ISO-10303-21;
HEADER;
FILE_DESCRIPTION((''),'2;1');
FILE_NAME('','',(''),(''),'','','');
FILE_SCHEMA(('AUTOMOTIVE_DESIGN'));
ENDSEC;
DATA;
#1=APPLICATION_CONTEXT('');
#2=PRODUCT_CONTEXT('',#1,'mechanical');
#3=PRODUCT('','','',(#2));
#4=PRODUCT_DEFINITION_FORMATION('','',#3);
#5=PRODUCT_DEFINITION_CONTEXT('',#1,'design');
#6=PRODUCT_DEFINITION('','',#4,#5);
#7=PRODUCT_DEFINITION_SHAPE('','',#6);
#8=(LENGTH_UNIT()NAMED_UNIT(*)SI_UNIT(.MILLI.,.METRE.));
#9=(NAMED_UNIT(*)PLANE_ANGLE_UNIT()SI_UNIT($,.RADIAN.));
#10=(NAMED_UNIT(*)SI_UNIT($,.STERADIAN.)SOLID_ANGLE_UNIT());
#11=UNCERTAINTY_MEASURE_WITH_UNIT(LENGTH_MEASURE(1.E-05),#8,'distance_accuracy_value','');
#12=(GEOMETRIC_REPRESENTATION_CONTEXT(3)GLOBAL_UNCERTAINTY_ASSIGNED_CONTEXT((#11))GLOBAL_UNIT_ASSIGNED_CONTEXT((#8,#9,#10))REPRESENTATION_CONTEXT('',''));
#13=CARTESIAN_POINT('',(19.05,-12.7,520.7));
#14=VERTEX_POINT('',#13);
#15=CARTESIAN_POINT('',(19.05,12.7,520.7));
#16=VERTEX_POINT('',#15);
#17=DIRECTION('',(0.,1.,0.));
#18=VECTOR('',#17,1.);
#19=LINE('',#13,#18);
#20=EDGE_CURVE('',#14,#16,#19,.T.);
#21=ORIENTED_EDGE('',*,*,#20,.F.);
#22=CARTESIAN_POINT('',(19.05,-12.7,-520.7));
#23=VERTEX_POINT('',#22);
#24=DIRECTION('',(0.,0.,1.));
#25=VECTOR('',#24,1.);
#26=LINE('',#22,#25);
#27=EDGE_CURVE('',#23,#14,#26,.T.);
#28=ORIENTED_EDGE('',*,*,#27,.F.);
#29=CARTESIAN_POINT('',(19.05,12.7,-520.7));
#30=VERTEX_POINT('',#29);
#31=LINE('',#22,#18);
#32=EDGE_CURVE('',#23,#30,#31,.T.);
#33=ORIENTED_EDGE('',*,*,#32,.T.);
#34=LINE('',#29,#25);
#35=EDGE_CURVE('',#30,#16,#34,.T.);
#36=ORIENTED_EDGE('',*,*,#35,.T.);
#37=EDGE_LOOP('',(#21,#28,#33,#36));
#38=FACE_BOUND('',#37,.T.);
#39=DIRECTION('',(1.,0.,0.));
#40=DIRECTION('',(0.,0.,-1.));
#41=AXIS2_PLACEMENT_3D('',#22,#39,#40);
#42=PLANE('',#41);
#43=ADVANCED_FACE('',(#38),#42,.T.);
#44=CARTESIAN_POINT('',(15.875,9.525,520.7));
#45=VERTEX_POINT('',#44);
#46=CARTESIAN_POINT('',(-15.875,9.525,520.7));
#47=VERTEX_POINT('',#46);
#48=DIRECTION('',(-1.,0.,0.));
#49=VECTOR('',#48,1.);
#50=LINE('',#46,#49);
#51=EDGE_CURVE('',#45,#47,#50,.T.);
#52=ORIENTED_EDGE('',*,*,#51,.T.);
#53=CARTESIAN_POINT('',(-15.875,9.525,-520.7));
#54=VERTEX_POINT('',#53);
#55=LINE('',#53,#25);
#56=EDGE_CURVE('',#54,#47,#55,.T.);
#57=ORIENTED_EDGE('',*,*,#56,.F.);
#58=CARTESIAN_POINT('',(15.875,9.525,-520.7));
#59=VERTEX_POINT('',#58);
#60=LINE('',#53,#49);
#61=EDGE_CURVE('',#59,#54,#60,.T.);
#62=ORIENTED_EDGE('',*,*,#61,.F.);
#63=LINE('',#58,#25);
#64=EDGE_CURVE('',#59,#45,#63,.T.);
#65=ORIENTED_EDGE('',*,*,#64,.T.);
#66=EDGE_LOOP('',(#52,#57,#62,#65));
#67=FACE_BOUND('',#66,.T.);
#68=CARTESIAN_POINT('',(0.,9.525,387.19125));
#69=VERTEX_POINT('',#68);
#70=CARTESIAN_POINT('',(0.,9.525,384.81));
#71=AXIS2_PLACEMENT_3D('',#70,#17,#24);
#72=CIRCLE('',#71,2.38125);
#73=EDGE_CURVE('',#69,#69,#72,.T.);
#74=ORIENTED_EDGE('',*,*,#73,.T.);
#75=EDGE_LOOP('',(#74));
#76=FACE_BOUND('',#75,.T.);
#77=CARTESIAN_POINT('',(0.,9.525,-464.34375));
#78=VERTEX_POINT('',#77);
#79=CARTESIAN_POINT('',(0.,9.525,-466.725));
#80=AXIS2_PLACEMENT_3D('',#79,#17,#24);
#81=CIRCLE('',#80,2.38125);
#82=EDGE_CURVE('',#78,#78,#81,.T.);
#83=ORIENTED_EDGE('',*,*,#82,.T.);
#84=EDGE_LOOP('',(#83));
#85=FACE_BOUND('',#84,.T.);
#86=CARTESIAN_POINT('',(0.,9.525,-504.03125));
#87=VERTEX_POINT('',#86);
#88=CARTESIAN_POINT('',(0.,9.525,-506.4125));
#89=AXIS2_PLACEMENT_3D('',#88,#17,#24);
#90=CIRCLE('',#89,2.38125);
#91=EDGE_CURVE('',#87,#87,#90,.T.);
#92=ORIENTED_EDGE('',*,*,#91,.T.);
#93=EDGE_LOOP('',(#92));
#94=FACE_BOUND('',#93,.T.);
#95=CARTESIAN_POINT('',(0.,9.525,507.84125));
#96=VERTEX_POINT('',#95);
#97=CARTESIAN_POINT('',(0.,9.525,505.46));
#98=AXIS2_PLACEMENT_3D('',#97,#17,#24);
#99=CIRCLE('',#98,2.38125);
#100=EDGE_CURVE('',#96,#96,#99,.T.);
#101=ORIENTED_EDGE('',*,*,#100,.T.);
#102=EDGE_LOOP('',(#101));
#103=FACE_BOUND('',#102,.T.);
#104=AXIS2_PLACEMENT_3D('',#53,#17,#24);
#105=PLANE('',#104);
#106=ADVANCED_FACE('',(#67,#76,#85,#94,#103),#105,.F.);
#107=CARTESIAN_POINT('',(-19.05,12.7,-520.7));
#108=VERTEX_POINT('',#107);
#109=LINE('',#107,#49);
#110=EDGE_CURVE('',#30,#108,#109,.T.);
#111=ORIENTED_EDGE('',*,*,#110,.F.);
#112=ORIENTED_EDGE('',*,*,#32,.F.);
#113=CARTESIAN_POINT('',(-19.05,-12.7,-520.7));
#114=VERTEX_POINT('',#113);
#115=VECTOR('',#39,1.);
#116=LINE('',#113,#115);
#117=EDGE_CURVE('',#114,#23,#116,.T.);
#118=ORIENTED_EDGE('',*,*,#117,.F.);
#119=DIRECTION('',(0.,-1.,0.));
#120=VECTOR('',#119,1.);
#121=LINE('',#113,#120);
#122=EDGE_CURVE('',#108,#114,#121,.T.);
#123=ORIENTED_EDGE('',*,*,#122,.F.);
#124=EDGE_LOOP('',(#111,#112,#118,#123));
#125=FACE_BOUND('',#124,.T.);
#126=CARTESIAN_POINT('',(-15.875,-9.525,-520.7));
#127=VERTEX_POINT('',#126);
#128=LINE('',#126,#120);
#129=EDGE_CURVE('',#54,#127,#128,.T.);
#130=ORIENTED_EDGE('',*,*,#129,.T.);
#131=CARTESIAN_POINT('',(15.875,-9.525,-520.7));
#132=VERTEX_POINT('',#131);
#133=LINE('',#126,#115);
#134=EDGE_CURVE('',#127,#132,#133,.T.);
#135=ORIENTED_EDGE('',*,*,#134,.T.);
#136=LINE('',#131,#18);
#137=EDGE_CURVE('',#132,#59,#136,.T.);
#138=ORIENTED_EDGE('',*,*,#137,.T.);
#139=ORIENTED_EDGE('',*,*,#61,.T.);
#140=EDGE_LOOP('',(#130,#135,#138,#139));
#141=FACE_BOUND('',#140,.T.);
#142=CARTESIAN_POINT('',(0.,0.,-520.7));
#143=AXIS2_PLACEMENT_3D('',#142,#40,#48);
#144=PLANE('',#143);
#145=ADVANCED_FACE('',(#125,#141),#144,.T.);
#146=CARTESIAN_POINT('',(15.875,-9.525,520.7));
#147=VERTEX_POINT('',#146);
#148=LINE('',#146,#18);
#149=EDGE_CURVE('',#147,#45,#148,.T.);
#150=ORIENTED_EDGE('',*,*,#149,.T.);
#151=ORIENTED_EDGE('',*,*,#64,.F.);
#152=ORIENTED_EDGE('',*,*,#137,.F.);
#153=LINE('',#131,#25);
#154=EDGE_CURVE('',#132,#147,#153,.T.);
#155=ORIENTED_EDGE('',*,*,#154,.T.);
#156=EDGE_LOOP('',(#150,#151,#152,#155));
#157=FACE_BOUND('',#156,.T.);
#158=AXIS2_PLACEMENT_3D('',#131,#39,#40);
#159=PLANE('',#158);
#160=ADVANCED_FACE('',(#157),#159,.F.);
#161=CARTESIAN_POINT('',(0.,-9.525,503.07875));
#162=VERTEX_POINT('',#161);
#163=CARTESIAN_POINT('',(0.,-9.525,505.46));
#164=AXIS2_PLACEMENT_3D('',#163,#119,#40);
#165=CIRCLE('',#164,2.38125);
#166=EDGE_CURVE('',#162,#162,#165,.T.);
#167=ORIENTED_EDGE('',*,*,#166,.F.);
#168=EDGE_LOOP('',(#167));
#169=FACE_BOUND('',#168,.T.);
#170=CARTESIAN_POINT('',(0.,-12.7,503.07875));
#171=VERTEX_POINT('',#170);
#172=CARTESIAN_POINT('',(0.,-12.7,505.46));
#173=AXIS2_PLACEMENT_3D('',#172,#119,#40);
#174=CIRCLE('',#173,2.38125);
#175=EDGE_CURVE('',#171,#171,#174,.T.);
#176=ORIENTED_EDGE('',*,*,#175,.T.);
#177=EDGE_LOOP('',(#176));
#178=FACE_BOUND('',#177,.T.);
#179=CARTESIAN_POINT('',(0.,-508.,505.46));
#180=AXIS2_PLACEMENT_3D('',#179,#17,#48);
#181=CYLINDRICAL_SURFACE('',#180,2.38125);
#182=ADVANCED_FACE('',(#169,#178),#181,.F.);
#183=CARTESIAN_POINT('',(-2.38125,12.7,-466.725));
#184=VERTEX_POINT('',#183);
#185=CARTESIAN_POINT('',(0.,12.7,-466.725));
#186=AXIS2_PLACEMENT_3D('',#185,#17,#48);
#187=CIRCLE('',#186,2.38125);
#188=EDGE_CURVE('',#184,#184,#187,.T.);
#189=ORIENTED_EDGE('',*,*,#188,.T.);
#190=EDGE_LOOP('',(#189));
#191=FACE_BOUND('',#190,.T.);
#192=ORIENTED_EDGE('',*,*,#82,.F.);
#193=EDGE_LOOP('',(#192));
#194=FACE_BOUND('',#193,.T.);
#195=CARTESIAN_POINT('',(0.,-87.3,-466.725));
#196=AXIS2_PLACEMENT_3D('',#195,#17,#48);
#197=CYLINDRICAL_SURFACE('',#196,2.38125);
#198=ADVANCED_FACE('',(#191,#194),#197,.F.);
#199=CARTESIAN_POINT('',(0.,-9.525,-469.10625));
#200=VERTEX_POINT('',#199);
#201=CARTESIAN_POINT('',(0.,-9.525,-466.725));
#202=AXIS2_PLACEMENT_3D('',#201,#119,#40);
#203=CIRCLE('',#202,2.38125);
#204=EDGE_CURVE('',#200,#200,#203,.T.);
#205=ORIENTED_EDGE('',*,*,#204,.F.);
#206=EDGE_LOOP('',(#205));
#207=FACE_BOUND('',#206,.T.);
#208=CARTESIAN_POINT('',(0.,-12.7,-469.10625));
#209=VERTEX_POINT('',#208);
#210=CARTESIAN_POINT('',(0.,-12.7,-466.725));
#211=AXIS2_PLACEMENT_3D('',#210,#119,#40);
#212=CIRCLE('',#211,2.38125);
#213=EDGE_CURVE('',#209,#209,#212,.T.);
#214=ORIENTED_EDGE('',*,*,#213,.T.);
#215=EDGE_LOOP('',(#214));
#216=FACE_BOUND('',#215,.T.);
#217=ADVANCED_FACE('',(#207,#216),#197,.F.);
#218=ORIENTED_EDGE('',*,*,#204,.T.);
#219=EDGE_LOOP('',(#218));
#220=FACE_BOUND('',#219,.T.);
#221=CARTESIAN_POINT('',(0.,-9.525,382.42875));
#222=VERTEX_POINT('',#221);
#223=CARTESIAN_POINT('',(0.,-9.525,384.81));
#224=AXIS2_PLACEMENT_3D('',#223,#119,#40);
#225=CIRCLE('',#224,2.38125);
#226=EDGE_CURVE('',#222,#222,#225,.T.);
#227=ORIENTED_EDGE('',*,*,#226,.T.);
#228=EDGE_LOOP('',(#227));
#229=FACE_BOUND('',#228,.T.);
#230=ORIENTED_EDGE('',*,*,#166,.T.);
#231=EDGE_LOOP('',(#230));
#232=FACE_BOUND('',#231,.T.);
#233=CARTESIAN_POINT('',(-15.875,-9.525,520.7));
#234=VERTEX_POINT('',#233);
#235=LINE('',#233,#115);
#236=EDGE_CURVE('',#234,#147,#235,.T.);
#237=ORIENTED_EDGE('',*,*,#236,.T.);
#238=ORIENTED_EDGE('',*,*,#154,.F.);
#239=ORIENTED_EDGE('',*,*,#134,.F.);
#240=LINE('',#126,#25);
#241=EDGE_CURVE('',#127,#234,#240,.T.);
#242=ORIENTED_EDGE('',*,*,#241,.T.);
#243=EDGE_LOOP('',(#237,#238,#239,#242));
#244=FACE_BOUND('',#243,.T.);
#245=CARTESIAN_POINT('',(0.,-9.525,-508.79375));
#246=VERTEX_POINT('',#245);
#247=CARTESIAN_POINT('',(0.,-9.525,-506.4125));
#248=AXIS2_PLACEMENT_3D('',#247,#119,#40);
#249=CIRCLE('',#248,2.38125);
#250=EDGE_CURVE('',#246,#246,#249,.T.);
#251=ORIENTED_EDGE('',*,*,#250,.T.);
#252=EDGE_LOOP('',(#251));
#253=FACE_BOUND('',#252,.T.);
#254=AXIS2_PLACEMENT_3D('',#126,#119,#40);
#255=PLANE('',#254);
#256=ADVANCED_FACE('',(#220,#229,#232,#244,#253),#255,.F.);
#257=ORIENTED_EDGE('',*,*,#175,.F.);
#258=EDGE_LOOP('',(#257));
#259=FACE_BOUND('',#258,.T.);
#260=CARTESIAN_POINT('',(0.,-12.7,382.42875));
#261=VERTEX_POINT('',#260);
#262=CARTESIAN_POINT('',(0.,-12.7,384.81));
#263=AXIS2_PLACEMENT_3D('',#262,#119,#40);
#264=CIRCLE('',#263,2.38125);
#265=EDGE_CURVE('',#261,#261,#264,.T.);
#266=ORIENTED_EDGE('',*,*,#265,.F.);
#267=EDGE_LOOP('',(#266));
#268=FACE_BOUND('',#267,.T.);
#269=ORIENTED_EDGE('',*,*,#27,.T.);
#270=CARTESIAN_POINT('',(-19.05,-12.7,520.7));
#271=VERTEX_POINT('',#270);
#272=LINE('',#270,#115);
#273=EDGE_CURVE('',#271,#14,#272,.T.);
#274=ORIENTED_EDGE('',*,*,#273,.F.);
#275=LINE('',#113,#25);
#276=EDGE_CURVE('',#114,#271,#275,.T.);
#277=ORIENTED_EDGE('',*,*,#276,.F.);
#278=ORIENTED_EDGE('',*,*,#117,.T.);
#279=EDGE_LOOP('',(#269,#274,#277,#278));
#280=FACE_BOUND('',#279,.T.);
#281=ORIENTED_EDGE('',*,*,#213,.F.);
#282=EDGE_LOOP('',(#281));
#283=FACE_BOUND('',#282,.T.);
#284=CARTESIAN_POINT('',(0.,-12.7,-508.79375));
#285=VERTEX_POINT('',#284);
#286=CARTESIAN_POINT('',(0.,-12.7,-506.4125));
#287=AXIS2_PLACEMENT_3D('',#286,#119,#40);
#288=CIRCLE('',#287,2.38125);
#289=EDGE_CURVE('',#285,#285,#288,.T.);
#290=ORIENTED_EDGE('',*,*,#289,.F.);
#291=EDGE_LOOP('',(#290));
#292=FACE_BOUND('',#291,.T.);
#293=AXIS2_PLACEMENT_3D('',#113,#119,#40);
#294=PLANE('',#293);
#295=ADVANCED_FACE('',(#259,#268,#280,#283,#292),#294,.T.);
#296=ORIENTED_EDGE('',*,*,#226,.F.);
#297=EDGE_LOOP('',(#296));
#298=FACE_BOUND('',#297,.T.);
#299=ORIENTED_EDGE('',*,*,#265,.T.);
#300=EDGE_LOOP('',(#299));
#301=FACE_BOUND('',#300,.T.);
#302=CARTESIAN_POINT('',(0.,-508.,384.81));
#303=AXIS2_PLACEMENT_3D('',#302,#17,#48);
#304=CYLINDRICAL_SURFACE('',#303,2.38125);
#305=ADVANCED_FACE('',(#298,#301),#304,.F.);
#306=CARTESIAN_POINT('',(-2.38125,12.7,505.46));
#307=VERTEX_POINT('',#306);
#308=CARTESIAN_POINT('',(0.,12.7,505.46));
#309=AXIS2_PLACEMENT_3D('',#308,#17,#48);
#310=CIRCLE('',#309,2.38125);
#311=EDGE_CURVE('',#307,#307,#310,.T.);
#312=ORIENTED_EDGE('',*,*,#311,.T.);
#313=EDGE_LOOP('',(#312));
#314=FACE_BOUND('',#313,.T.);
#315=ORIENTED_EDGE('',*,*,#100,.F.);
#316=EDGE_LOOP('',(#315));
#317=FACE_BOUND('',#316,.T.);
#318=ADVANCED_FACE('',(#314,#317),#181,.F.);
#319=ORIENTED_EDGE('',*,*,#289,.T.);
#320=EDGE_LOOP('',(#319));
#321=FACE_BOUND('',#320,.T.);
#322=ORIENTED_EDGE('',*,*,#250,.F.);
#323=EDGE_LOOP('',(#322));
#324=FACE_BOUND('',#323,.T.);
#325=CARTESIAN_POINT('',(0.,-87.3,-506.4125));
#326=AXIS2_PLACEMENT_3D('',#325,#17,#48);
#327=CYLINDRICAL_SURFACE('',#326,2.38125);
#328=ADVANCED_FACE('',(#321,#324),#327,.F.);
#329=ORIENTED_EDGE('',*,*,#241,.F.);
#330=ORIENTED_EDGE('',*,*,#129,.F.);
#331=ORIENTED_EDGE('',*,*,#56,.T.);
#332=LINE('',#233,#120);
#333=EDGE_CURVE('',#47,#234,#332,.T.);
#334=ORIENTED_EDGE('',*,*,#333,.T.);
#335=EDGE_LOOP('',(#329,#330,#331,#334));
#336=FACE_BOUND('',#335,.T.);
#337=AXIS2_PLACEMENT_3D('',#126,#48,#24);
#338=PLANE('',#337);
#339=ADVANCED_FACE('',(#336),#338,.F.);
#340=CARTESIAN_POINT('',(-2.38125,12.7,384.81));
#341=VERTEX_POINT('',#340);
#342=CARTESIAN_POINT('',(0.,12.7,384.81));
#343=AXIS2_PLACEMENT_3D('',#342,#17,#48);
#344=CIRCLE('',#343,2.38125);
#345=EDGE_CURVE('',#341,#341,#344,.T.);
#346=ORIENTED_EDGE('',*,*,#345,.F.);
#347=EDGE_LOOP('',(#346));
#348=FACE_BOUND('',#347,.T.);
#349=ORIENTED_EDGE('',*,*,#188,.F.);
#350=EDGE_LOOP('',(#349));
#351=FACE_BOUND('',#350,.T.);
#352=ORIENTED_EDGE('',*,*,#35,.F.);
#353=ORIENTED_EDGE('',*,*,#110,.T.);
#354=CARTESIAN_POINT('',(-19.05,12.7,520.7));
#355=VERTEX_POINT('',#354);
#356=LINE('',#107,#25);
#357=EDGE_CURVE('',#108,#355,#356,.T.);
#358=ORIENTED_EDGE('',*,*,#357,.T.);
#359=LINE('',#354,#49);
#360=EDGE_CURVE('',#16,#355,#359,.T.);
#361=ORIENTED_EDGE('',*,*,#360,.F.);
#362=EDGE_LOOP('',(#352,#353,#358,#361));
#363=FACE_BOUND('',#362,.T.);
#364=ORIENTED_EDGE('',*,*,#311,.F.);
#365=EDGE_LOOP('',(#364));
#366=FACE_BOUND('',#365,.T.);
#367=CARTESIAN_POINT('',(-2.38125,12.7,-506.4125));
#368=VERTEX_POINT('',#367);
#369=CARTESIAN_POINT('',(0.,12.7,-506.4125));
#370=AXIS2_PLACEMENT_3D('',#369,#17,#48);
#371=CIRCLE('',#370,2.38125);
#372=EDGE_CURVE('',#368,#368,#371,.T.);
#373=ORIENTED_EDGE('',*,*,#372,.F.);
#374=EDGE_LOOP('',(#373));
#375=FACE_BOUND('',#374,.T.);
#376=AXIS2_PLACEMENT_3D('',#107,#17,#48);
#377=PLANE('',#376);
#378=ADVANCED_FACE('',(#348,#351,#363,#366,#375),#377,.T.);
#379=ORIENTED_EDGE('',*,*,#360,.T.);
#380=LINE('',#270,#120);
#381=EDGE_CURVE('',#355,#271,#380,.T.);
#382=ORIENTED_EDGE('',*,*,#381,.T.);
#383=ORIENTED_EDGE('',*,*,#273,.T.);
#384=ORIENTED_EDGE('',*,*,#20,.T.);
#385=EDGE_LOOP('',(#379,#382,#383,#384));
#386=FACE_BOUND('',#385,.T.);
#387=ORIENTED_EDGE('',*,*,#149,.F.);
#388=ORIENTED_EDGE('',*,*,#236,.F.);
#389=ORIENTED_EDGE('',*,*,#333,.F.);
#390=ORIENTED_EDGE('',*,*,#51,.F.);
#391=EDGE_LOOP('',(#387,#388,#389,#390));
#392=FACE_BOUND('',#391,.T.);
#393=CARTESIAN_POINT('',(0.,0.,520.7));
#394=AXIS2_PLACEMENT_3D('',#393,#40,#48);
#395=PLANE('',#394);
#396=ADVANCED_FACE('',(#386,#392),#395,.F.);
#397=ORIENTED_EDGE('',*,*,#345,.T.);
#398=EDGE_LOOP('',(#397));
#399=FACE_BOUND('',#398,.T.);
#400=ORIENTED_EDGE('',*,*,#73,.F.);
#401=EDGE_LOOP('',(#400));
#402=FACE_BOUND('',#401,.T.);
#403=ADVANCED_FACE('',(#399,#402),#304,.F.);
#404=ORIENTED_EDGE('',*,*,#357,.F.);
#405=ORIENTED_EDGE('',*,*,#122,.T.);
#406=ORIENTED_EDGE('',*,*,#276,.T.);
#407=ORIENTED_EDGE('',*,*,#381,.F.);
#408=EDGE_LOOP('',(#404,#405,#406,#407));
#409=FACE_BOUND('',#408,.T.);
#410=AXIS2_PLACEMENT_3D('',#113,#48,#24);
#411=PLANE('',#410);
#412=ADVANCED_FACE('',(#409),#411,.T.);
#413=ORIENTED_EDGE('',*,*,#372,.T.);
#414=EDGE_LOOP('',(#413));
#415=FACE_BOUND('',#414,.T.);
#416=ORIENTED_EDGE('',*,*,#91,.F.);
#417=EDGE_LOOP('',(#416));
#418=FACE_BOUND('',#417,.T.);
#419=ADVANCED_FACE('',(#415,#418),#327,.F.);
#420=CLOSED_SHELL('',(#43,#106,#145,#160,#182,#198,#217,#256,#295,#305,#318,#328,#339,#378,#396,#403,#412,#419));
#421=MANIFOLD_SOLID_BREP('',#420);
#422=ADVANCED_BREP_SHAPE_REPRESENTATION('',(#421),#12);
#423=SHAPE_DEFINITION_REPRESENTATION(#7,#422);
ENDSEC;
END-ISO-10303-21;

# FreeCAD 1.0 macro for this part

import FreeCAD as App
import Part
import Sketcher

V = App.Vector
Q = App.Units.Quantity


def add_polygon(sketch, points):
    """Adds a closed chain of lines whose ends are joined by coincident constraints."""
    first, n = sketch.GeometryCount, len(points)
    for a, b in zip(points, points[1:] + points[:1]):
        sketch.addGeometry(Part.LineSegment(App.Vector(*a, 0), App.Vector(*b, 0)), False)
    for i in range(n):
        sketch.addConstraint(Sketcher.Constraint("Coincident", first + i, 2, first + (i + 1) % n, 1))

doc = App.newDocument("Part")
body = doc.addObject("PartDesign::Body", "Body")

# Sketch on XY plane
sketch1 = doc.addObject("Sketcher::SketchObject", "Sketch")
body.addObject(sketch1)
sketch1.AttachmentSupport = (doc.XY_Plane, [""])
sketch1.MapMode = "FlatFace"
add_polygon(sketch1, [(-19.05, 12.7), (-19.05, -12.7), (19.05, -12.7), (19.05, 12.7)])  # lines 0-3
add_polygon(sketch1, [(15.875, -9.525), (-15.875, -9.525), (-15.875, 9.525), (15.875, 9.525)])  # lines 4-7
sketch1.addConstraint([
    Sketcher.Constraint("Vertical", 0),
    Sketcher.Constraint("Horizontal", 1),
    Sketcher.Constraint("Vertical", 2),
    Sketcher.Constraint("Horizontal", 3),
    Sketcher.Constraint("Horizontal", 4),
    Sketcher.Constraint("Vertical", 5),
    Sketcher.Constraint("Horizontal", 6),
    Sketcher.Constraint("Vertical", 7),
    Sketcher.Constraint("Symmetric", 0, 2, 2, 2, -1, 1),
    Sketcher.Constraint("Symmetric", 4, 2, 6, 2, -1, 1),
    Sketcher.Constraint("DistanceY", 0, 2, 0, 1, Q("1 in")),
    Sketcher.Constraint("DistanceX", 1, 1, 1, 2, Q("1.5 in")),
    Sketcher.Constraint("DistanceX", 4, 2, 4, 1, Q("1.25 in")),
    Sketcher.Constraint("DistanceY", 5, 1, 5, 2, Q("0.75 in")),
])
pad1 = doc.addObject("PartDesign::Pad", "Pad")
body.addObject(pad1)
pad1.Profile = sketch1
pad1.Type = "TwoLengths"
pad1.Length = Q("20.5 in")
pad1.Length2 = Q("20.5 in")

# Sketch on XZ plane
sketch2 = doc.addObject("Sketcher::SketchObject", "Sketch001")
body.addObject(sketch2)
sketch2.AttachmentSupport = (doc.XZ_Plane, [""])
sketch2.MapMode = "FlatFace"
sketch2.AttachmentOffset = App.Placement(V(0, 0, -0.5 * 25.4), App.Rotation())
sketch2.addGeometry([
    Part.Circle(V(0, 384.81, 0), V(0, 0, 1), 2.38125),
    Part.Circle(V(0, 505.46, 0), V(0, 0, 1), 2.38125),
], False)
sketch2.addConstraint([
    Sketcher.Constraint("Equal", 0, 1),
    Sketcher.Constraint("PointOnObject", 0, 3, -2),
    Sketcher.Constraint("PointOnObject", 1, 3, -2),
    Sketcher.Constraint("Diameter", 0, Q("0.1875 in")),
    Sketcher.Constraint("DistanceY", -1, 1, 1, 3, Q("19.9 in")),
    Sketcher.Constraint("DistanceY", -1, 1, 0, 3, Q("15.15 in")),
])
pocket1 = doc.addObject("PartDesign::Pocket", "Pocket")
body.addObject(pocket1)
pocket1.Profile = sketch2
pocket1.Length = Q("20.5 in")
pocket1.Reversed = True

# Sketch on XZ plane
sketch3 = doc.addObject("Sketcher::SketchObject", "Sketch002")
body.addObject(sketch3)
sketch3.AttachmentSupport = (doc.XZ_Plane, [""])
sketch3.MapMode = "FlatFace"
sketch3.AttachmentOffset = App.Placement(V(0, 0, -0.5 * 25.4), App.Rotation())
sketch3.addGeometry([
    Part.Circle(V(0, -506.4125, 0), V(0, 0, 1), 2.38125),
    Part.Circle(V(0, -466.725, 0), V(0, 0, 1), 2.38125),
], False)
sketch3.addConstraint([
    Sketcher.Constraint("Equal", 0, 1),
    Sketcher.Constraint("PointOnObject", 0, 3, -2),
    Sketcher.Constraint("PointOnObject", 1, 3, -2),
    Sketcher.Constraint("Diameter", 0, Q("0.1875 in")),
    Sketcher.Constraint("DistanceY", 0, 3, -1, 1, Q("19.9375 in")),
    Sketcher.Constraint("DistanceY", 1, 3, -1, 1, Q("18.375 in")),
])
pocket2 = doc.addObject("PartDesign::Pocket", "Pocket001")
body.addObject(pocket2)
pocket2.Profile = sketch3
pocket2.Length = 100
pocket2.Reversed = True

doc.recompute()
